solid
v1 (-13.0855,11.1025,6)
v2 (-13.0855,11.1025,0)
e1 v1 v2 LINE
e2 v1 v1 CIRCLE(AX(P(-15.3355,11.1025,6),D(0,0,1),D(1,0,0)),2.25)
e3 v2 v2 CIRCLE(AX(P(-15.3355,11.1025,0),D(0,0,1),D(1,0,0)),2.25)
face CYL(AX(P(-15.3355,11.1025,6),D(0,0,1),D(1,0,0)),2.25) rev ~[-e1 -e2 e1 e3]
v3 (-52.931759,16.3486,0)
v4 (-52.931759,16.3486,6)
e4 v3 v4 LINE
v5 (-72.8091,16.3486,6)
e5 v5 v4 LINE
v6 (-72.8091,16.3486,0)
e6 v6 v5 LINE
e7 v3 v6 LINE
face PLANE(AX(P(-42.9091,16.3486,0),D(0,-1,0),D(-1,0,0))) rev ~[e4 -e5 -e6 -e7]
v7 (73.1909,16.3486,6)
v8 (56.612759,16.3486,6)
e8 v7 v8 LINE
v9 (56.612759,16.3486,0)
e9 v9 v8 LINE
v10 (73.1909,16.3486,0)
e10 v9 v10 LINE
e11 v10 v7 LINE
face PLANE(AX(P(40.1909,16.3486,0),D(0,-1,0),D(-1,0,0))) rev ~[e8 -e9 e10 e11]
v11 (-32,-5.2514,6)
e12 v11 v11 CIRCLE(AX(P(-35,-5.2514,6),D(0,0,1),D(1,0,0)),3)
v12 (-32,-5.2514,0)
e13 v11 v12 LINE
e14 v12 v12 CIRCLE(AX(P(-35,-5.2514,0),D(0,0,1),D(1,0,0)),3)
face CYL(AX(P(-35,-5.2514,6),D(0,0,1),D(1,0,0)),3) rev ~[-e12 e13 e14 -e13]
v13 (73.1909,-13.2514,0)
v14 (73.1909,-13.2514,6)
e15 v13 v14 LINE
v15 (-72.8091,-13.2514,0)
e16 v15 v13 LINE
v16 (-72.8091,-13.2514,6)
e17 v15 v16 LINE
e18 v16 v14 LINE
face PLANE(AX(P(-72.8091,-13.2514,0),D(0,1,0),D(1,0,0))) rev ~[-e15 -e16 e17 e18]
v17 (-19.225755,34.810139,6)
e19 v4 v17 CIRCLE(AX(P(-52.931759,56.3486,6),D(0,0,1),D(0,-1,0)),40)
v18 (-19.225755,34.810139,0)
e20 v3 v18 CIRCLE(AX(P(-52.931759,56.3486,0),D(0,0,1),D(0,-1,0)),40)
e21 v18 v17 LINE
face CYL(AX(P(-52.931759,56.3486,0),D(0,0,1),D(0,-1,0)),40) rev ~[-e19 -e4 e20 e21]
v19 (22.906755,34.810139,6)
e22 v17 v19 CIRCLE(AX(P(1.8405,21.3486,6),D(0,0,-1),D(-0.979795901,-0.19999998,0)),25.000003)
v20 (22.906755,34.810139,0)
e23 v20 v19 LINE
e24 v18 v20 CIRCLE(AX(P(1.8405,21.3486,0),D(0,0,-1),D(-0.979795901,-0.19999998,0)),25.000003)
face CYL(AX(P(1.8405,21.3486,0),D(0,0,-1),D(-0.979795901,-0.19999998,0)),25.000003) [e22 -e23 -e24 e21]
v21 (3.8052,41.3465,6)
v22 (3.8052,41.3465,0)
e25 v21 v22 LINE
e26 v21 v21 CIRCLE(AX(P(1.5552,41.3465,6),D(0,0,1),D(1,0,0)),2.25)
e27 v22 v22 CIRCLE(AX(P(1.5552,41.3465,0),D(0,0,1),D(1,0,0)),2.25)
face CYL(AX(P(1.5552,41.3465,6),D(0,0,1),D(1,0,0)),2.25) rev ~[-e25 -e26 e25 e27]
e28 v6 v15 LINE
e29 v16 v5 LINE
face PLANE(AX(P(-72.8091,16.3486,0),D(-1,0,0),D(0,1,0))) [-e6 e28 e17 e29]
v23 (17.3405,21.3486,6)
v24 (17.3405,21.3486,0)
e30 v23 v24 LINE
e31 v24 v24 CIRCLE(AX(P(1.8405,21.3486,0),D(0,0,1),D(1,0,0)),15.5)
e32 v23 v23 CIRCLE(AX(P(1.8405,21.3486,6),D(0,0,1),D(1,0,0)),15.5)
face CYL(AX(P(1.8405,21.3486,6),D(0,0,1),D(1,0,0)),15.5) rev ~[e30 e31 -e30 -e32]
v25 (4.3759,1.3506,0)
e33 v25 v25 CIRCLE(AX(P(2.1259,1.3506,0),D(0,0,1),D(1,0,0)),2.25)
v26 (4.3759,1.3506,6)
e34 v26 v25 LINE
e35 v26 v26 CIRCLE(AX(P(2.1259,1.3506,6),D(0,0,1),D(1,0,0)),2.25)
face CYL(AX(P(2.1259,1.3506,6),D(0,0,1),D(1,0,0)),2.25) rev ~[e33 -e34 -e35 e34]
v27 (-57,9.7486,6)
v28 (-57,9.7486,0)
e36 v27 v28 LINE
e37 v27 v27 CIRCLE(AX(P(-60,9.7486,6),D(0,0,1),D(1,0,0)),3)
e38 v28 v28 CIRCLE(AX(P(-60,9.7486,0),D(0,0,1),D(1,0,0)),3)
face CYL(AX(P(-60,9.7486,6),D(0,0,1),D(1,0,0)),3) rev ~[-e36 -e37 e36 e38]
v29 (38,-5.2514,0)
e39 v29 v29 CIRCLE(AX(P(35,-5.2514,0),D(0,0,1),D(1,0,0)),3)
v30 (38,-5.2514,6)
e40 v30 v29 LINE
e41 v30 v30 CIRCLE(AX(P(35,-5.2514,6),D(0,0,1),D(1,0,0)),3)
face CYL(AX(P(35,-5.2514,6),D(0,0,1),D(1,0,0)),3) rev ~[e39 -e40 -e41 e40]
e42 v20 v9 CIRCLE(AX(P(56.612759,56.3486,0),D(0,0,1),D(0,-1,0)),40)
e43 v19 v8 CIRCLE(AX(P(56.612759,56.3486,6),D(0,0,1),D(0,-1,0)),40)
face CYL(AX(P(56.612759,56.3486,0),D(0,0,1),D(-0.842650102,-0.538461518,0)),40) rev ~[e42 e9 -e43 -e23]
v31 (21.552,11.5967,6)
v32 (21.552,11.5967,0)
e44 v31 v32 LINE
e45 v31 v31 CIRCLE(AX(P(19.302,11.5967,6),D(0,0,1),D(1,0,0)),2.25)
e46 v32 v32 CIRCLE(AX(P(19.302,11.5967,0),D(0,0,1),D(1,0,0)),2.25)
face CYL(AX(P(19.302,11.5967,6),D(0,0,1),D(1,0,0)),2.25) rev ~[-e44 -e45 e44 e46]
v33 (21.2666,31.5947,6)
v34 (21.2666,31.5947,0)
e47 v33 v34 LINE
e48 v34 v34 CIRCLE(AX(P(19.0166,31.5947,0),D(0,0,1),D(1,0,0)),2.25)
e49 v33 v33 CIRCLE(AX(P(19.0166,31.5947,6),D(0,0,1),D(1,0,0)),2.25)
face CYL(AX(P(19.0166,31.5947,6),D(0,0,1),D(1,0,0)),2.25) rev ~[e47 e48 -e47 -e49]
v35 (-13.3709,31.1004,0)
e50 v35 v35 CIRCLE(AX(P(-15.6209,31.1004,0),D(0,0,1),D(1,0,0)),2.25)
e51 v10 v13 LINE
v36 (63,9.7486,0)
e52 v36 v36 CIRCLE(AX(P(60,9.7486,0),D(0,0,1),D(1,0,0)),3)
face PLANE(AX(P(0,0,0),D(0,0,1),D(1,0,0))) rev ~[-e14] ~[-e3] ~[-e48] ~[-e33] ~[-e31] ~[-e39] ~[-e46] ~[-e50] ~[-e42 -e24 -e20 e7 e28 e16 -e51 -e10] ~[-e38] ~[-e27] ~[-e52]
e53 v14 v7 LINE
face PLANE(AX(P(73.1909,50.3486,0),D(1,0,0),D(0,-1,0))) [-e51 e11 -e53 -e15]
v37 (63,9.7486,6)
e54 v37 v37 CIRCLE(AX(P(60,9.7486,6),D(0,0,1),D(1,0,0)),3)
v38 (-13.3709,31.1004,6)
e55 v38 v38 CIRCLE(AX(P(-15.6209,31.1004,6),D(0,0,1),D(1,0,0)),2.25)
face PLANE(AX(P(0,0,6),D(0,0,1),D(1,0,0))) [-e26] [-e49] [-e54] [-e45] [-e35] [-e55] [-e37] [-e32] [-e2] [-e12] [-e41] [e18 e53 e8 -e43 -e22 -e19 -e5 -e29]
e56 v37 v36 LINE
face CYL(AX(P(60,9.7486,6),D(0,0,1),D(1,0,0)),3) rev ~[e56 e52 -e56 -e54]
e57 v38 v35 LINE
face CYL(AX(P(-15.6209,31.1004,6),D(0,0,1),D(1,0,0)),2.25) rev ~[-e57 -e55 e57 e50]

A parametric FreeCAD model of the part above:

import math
import FreeCAD as App
import Part
import Sketcher


def edges_at(feature, points):
    """Names of the edges that pass closest to the given points."""
    edges = feature.Shape.Edges
    near = lambda p: min(range(len(edges)), key=lambda i: edges[i].distToShape(Part.Vertex(*p))[0])
    return sorted({f"Edge{near(p) + 1}" for p in points})


def add_polygon(sketch, points):
    """Adds a closed chain of lines whose ends are joined by coincident constraints."""
    first, n = sketch.GeometryCount, len(points)
    for a, b in zip(points, points[1:] + points[:1]):
        sketch.addGeometry(Part.LineSegment(App.Vector(*a, 0), App.Vector(*b, 0)), False)
    for i in range(n):
        sketch.addConstraint(Sketcher.Constraint("Coincident", first + i, 2, first + (i + 1) % n, 1))

doc = App.newDocument("Part")
params = doc.addObject("Spreadsheet::Sheet", "Params")
for row, (alias, value) in enumerate([
    ("sketch1_width", "146 mm"),
    ("sketch1_height", "63.6 mm"),
    ("pad1_length", "6 mm"),
    ("sketch2_diameter", "6 mm"),
    ("sketch3_diameter", "31 mm"),
    ("sketch3_diameter2", "4.5 mm"),
    ("sketch4_radius", "25 mm"),
    ("sketch4_width", "146 mm"),
    ("sketch4_height", "34 mm"),
    ("fillet_radius", "40 mm"),
], start=1):
    params.set(f"A{row}", alias)
    params.set(f"B{row}", "=" + value)
    params.setAlias(f"B{row}", alias)

body = doc.addObject("PartDesign::Body", "Body")

# Sketch on XY plane
sketch1 = doc.addObject("Sketcher::SketchObject", "Sketch")
body.addObject(sketch1)
sketch1.AttachmentSupport = (doc.XY_Plane, [""])
sketch1.MapMode = "FlatFace"
add_polygon(sketch1, [(-73, 50), (-73, -13), (73, -13), (73, 50)])  # lines 0-3
sketch1.addConstraint([
    Sketcher.Constraint("Vertical", 0),
    Sketcher.Constraint("Horizontal", 1),
    Sketcher.Constraint("Vertical", 2),
    Sketcher.Constraint("Horizontal", 3),
    Sketcher.Constraint("DistanceX", 1, 1, 1, 2, 146.0),
    Sketcher.Constraint("DistanceY", 0, 2, 0, 1, 63.6),
    Sketcher.Constraint("DistanceX", 0, 2, -1, 1, 72.809),
    Sketcher.Constraint("DistanceY", 0, 2, -1, 1, 13.2514),
])
sketch1.setExpression("Constraints[8]", "Params.sketch1_width")
sketch1.setExpression("Constraints[9]", "Params.sketch1_height")
pad1 = doc.addObject("PartDesign::Pad", "Pad")
body.addObject(pad1)
pad1.Profile = sketch1
pad1.setExpression("Length", "Params.pad1_length")

# Sketch on XY plane
sketch2 = doc.addObject("Sketcher::SketchObject", "Sketch001")
body.addObject(sketch2)
sketch2.AttachmentSupport = (doc.XY_Plane, [""])
sketch2.MapMode = "FlatFace"
sketch2.AttachmentOffset = App.Placement(App.Vector(0, 0, 6), App.Rotation())
sketch2.addGeometry([
    Part.Circle(App.Vector(35, -5.3, 0), App.Vector(0, 0, 1), 3),
    Part.Circle(App.Vector(60, 9.7, 0), App.Vector(0, 0, 1), 3),
    Part.Circle(App.Vector(-35, -5.3, 0), App.Vector(0, 0, 1), 3),
    Part.Circle(App.Vector(-60, 9.7, 0), App.Vector(0, 0, 1), 3),
], False)
sketch2.addConstraint([
    Sketcher.Constraint("Equal", 0, 1),
    Sketcher.Constraint("Equal", 1, 2),
    Sketcher.Constraint("Equal", 2, 3),
    Sketcher.Constraint("Symmetric", 0, 3, 2, 3, -2),
    Sketcher.Constraint("Symmetric", 1, 3, 3, 3, -2),
    Sketcher.Constraint("Diameter", 0, 6.0),
    Sketcher.Constraint("DistanceX", -1, 1, 0, 3, 35.0),
    Sketcher.Constraint("DistanceX", -1, 1, 1, 3, 60.0),
    Sketcher.Constraint("DistanceY", 0, 3, 1, 3, 15.0),
    Sketcher.Constraint("DistanceY", 0, 3, -1, 1, 5.2514),
])
sketch2.setExpression("Constraints[5]", "Params.sketch2_diameter")
pocket1 = doc.addObject("PartDesign::Pocket", "Pocket")
body.addObject(pocket1)
pocket1.Profile = sketch2
pocket1.Type = "ThroughAll"

# Sketch on XY plane
sketch3 = doc.addObject("Sketcher::SketchObject", "Sketch002")
body.addObject(sketch3)
sketch3.AttachmentSupport = (doc.XY_Plane, [""])
sketch3.MapMode = "FlatFace"
sketch3.AttachmentOffset = App.Placement(App.Vector(0, 0, 6), App.Rotation())
sketch3.addGeometry([
    Part.Circle(App.Vector(2.1, 1.4, 0), App.Vector(0, 0, 1), 2.2),  # 0
    Part.Circle(App.Vector(-15.3, 11.1, 0), App.Vector(0, 0, 1), 2.2),  # 1
    Part.Circle(App.Vector(-15.6, 31.1, 0), App.Vector(0, 0, 1), 2.2),  # 2
    Part.Circle(App.Vector(1.6, 41.3, 0), App.Vector(0, 0, 1), 2.2),  # 3
    Part.Circle(App.Vector(19, 31.6, 0), App.Vector(0, 0, 1), 2.2),  # 4
    Part.Circle(App.Vector(19.3, 11.6, 0), App.Vector(0, 0, 1), 2.2),  # 5
    Part.Circle(App.Vector(1.8, 21.3, 0), App.Vector(0, 0, 1), 15.5),  # 6
], False)
sketch3.addConstraint([
    Sketcher.Constraint("Equal", 0, 1),
    Sketcher.Constraint("Equal", 1, 2),
    Sketcher.Constraint("Equal", 2, 3),
    Sketcher.Constraint("Equal", 3, 4),
    Sketcher.Constraint("Equal", 4, 5),
    Sketcher.Constraint("Diameter", 6, 31.0),
    Sketcher.Constraint("Diameter", 0, 4.5),
    Sketcher.Constraint("DistanceX", -1, 1, 0, 3, 2.126),
    Sketcher.Constraint("DistanceX", 2, 3, -1, 1, 15.621),
    Sketcher.Constraint("DistanceX", -1, 1, 5, 3, 19.302),
    Sketcher.Constraint("DistanceY", 0, 3, 1, 3, 9.752),
    Sketcher.Constraint("DistanceY", 1, 3, 2, 3, 19.998),
    Sketcher.Constraint("DistanceX", 2, 3, 3, 3, 17.176),
    Sketcher.Constraint("DistanceY", 2, 3, 3, 3, 10.246),
    Sketcher.Constraint("DistanceY", 0, 3, 4, 3, 30.244),
    Sketcher.Constraint("DistanceX", 1, 3, 4, 3, 34.352),
    Sketcher.Constraint("DistanceY", 0, 3, 5, 3, 10.246),
    Sketcher.Constraint("DistanceY", 6, 3, 3, 3, 19.998),
    Sketcher.Constraint("DistanceX", 1, 3, 6, 3, 17.176),
    Sketcher.Constraint("DistanceY", -1, 1, 0, 3, 1.3506),
    Sketcher.Constraint("DistanceX", 1, 3, -1, 1, 15.3355),
])
sketch3.setExpression("Constraints[5]", "Params.sketch3_diameter")
sketch3.setExpression("Constraints[6]", "Params.sketch3_diameter2")
pocket2 = doc.addObject("PartDesign::Pocket", "Pocket001")
body.addObject(pocket2)
pocket2.Profile = sketch3
pocket2.Type = "ThroughAll"

# Sketch on XY plane
sketch4 = doc.addObject("Sketcher::SketchObject", "Sketch003")
body.addObject(sketch4)
sketch4.AttachmentSupport = (doc.XY_Plane, [""])
sketch4.MapMode = "FlatFace"
sketch4.addGeometry([
    Part.LineSegment(App.Vector(73, 50, 0), App.Vector(73, 16, 0)),  # 0
    Part.LineSegment(App.Vector(73, 16, 0), App.Vector(26, 16, 0)),  # 1
    Part.ArcOfCircle(Part.Circle(App.Vector(2, 21, 0), App.Vector(0, 0, 1), 25), math.radians(-12), math.radians(192)),  # 2
    Part.LineSegment(App.Vector(-23, 16, 0), App.Vector(-73, 16, 0)),  # 3
    Part.LineSegment(App.Vector(-73, 16, 0), App.Vector(-73, 50, 0)),  # 4
    Part.LineSegment(App.Vector(-73, 50, 0), App.Vector(73, 50, 0)),  # 5
], False)
sketch4.addConstraint([
    Sketcher.Constraint("Coincident", 0, 2, 1, 1),
    Sketcher.Constraint("Coincident", 1, 2, 2, 1),
    Sketcher.Constraint("Coincident", 2, 2, 3, 1),
    Sketcher.Constraint("Coincident", 3, 2, 4, 1),
    Sketcher.Constraint("Coincident", 4, 2, 5, 1),
    Sketcher.Constraint("Coincident", 5, 2, 0, 1),
    Sketcher.Constraint("Vertical", 0),
    Sketcher.Constraint("Horizontal", 1),
    Sketcher.Constraint("Horizontal", 3),
    Sketcher.Constraint("Vertical", 4),
    Sketcher.Constraint("Horizontal", 5),
    Sketcher.Constraint("Horizontal", 1, 2, 2, 2),
    Sketcher.Constraint("Radius", 2, 25.0),
    Sketcher.Constraint("DistanceX", 5, 1, 5, 2, 146.0),
    Sketcher.Constraint("DistanceY", 0, 2, 0, 1, 34.0),
    Sketcher.Constraint("DistanceY", 0, 2, 2, 3, 5.0),
    Sketcher.Constraint("DistanceX", 1, 2, 1, 1, 46.8555),
    Sketcher.Constraint("DistanceX", -1, 1, 0, 2, 73.191),
    Sketcher.Constraint("DistanceY", -1, 1, 2, 3, 21.3486),
])
sketch4.setExpression("Constraints[12]", "Params.sketch4_radius")
sketch4.setExpression("Constraints[13]", "Params.sketch4_width")
sketch4.setExpression("Constraints[14]", "Params.sketch4_height")
pocket3 = doc.addObject("PartDesign::Pocket", "Pocket002")
body.addObject(pocket3)
pocket3.Profile = sketch4
pocket3.Type = "ThroughAll"
pocket3.Reversed = True
doc.recompute()

fillet = doc.addObject("PartDesign::Fillet", "Fillet")
body.addObject(fillet)
fillet.Base = (pocket3, edges_at(pocket3, [(-22.654, 16.349, 3), (26.335, 16.349, 3)]))
fillet.setExpression("Radius", "Params.fillet_radius")

doc.recompute()
